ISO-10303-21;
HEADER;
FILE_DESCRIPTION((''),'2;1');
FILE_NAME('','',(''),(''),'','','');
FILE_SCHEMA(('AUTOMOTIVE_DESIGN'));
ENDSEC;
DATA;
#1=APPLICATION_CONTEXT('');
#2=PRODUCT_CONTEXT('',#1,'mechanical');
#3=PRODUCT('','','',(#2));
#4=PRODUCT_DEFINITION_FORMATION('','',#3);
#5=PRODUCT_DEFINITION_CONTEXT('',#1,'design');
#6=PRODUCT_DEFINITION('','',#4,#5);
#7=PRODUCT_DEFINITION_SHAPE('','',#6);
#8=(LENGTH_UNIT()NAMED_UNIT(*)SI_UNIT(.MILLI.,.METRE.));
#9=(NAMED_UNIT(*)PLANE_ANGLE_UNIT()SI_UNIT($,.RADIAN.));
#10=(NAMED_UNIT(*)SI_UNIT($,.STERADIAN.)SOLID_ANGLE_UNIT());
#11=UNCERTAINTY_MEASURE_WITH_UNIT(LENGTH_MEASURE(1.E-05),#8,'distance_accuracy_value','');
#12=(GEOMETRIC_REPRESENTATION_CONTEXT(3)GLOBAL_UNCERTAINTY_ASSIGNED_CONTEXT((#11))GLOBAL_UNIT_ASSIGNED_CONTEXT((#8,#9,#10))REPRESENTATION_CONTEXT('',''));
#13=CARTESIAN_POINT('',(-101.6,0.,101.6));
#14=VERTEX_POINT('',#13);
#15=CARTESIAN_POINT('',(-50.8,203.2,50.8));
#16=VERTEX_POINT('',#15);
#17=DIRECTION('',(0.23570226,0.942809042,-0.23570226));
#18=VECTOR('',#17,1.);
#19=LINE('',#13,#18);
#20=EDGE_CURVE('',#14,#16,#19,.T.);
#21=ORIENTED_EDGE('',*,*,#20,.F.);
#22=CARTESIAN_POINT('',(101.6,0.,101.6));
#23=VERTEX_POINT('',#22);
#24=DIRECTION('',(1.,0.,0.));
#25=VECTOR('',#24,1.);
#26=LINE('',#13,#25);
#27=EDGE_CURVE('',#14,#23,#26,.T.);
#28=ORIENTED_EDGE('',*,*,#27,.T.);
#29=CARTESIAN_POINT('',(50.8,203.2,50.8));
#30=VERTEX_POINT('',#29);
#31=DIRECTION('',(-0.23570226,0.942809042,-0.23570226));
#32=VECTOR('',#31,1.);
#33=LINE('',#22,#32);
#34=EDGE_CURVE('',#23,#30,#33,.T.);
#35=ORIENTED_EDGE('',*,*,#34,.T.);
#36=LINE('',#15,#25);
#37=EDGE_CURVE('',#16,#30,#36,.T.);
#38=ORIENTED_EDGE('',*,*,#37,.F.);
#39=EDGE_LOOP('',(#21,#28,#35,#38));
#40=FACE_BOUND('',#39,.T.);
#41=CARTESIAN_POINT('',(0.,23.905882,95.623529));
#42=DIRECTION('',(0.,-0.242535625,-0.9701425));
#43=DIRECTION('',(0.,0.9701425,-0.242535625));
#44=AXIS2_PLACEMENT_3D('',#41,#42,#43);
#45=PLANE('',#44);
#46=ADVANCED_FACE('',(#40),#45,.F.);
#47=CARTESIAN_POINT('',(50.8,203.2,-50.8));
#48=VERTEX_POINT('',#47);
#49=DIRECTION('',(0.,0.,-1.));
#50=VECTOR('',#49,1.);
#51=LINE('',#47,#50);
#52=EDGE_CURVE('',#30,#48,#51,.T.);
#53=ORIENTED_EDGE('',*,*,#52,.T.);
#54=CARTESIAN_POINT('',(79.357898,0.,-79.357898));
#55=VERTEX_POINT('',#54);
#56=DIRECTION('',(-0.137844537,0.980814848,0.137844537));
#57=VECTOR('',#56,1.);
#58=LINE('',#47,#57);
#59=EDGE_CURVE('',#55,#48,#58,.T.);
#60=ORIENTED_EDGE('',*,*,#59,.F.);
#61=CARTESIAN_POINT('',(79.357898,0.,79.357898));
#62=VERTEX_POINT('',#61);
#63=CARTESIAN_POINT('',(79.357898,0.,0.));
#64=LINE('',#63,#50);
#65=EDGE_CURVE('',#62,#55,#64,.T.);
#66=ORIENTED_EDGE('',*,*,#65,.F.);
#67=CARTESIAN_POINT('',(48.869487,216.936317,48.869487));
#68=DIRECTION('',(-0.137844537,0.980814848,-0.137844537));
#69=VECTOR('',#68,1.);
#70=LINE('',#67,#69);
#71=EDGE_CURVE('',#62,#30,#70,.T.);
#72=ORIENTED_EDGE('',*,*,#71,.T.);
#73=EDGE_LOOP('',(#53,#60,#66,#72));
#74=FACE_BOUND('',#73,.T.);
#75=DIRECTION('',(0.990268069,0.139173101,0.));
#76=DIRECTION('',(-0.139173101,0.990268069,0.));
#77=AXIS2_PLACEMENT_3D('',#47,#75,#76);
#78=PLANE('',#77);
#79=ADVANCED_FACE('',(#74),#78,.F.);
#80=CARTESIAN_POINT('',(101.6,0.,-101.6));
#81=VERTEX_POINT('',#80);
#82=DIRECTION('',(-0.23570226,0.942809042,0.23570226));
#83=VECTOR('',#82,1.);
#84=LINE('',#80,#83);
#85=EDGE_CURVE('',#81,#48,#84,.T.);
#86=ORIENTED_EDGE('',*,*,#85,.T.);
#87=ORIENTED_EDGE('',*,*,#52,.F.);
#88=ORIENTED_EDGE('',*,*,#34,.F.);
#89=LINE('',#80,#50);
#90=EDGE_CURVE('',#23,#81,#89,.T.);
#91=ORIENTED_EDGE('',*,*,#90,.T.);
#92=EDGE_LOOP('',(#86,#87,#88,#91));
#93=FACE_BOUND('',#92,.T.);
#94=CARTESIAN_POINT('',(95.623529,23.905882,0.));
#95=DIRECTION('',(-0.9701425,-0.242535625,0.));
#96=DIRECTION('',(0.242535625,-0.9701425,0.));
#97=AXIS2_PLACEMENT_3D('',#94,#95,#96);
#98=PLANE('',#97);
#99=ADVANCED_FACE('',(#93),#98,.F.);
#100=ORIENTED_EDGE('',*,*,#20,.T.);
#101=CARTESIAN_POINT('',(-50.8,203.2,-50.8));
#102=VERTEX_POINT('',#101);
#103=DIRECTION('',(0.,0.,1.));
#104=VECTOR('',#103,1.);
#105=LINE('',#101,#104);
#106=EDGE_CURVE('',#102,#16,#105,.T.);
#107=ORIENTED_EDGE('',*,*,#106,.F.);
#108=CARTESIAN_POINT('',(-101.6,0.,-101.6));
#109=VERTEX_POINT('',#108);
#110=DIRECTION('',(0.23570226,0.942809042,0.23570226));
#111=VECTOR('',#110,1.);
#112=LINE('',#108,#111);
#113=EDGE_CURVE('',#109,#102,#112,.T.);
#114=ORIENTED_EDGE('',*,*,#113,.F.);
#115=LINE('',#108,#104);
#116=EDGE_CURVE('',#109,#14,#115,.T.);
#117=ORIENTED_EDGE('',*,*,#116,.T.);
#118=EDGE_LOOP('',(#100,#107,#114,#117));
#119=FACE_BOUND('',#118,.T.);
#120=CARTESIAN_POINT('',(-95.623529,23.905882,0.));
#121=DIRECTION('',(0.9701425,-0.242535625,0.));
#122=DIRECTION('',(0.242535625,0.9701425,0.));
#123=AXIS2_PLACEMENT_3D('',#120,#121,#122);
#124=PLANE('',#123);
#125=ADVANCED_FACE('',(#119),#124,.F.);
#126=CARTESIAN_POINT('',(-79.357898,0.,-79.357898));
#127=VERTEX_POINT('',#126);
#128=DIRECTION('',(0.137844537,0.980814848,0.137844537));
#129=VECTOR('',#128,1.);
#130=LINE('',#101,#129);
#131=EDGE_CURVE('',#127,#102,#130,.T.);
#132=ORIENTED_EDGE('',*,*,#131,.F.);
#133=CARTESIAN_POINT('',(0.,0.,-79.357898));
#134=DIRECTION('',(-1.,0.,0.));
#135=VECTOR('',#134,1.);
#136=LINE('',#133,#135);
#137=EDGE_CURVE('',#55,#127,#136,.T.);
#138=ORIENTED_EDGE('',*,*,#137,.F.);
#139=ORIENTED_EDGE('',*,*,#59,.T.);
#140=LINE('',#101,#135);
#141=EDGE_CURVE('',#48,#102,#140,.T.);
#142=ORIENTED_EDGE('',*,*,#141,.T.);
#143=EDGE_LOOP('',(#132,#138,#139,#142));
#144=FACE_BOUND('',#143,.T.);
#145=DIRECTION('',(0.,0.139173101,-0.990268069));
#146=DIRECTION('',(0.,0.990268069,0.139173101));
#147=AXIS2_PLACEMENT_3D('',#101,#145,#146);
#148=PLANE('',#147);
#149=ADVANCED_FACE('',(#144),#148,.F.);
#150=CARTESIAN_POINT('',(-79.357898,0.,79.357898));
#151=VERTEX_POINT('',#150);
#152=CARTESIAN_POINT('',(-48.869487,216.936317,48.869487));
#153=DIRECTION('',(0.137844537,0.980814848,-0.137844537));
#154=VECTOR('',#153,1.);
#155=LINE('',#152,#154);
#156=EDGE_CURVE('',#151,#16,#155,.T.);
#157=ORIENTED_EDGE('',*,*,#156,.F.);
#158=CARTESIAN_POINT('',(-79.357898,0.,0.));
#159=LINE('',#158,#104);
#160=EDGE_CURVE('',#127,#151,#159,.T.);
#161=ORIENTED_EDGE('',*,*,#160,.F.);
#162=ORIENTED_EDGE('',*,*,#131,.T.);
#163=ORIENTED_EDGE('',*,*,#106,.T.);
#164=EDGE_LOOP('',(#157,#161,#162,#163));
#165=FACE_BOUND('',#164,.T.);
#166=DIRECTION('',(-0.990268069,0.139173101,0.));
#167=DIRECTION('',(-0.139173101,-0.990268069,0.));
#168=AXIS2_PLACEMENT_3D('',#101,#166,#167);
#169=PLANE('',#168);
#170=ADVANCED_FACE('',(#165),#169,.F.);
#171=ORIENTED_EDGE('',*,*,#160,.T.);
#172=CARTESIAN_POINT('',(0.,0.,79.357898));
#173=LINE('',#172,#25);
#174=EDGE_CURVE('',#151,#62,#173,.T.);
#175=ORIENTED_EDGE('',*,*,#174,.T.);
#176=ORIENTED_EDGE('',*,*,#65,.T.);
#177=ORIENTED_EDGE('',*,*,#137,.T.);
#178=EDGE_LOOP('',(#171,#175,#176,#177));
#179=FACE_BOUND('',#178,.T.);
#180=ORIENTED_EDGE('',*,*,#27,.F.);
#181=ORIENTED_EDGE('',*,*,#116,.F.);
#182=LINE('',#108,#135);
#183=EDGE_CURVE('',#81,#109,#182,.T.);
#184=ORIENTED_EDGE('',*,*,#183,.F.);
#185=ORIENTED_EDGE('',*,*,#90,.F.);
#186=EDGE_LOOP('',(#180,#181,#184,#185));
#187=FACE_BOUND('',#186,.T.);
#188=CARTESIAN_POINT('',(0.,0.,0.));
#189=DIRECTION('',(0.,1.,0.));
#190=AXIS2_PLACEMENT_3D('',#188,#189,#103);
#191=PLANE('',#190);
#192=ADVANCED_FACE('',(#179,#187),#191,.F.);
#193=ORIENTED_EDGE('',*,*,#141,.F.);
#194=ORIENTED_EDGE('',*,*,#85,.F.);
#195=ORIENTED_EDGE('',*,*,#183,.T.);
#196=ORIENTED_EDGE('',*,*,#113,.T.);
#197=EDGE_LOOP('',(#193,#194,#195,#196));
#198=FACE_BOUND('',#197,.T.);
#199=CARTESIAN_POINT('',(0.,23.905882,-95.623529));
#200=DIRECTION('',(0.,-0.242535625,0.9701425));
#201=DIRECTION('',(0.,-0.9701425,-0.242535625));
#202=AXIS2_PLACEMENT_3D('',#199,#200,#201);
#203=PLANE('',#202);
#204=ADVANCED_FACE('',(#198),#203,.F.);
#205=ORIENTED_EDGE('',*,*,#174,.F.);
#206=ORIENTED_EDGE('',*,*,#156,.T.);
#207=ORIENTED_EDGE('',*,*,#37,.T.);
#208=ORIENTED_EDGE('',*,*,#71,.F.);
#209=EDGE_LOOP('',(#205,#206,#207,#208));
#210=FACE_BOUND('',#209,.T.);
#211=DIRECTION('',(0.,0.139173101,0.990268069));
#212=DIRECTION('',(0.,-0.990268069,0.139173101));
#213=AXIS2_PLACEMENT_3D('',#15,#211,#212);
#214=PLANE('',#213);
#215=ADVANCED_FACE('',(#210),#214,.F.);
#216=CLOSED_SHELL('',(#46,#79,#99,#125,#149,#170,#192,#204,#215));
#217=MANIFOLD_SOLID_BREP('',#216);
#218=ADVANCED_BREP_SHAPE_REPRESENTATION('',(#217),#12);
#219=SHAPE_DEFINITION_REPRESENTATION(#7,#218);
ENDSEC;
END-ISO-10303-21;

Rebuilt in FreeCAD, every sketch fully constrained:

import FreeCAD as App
import Part
import Sketcher
from FreeCAD import Vector
Q = App.Units.Quantity

doc = App.newDocument("Part")
body = doc.addObject("PartDesign::Body", "Body")

sketch1 = doc.addObject("Sketcher::SketchObject", "Sketch")
body.addObject(sketch1)
sketch1.AttachmentSupport = (doc.XZ_Plane, [""])
sketch1.MapMode = "FlatFace"
sketch1.addGeometry([
    Part.LineSegment(Vector(-102, -102, 0), Vector(-102, 102, 0)),
    Part.LineSegment(Vector(-102, 102, 0), Vector(102, 102, 0)),
    Part.LineSegment(Vector(102, 102, 0), Vector(102, -102, 0)),
    Part.LineSegment(Vector(102, -102, 0), Vector(-102, -102, 0)),
], False)
sketch1.addConstraint([
    Sketcher.Constraint("Coincident", 0, 2, 1, 1),
    Sketcher.Constraint("Coincident", 1, 2, 2, 1),
    Sketcher.Constraint("Coincident", 2, 2, 3, 1),
    Sketcher.Constraint("Coincident", 3, 2, 0, 1),
    Sketcher.Constraint("Vertical", 0),
    Sketcher.Constraint("Horizontal", 1),
    Sketcher.Constraint("Vertical", 2),
    Sketcher.Constraint("Horizontal", 3),
    Sketcher.Constraint("Symmetric", 0, 2, 2, 2, -1, 1),
    Sketcher.Constraint("Equal", 3, 0),
    Sketcher.Constraint("DistanceX", 1, 1, 1, 2, Q("8 in")),
])

sketch2 = doc.addObject("Sketcher::SketchObject", "Sketch001")
body.addObject(sketch2)
sketch2.AttachmentSupport = (doc.XZ_Plane, [""])
sketch2.MapMode = "FlatFace"
sketch2.AttachmentOffset = App.Placement(Vector(0, 0, -8 * 25.4), App.Rotation())
sketch2.addGeometry([
    Part.LineSegment(Vector(-51, -51, 0), Vector(-51, 51, 0)),
    Part.LineSegment(Vector(-51, 51, 0), Vector(51, 51, 0)),
    Part.LineSegment(Vector(51, 51, 0), Vector(51, -51, 0)),
    Part.LineSegment(Vector(51, -51, 0), Vector(-51, -51, 0)),
], False)
sketch2.addConstraint([
    Sketcher.Constraint("Coincident", 0, 2, 1, 1),
    Sketcher.Constraint("Coincident", 1, 2, 2, 1),
    Sketcher.Constraint("Coincident", 2, 2, 3, 1),
    Sketcher.Constraint("Coincident", 3, 2, 0, 1),
    Sketcher.Constraint("Vertical", 0),
    Sketcher.Constraint("Horizontal", 1),
    Sketcher.Constraint("Vertical", 2),
    Sketcher.Constraint("Horizontal", 3),
    Sketcher.Constraint("Symmetric", 0, 2, 2, 2, -1, 1),
    Sketcher.Constraint("Equal", 3, 0),
    Sketcher.Constraint("DistanceX", 1, 1, 1, 2, Q("4 in")),
])

additiveloft = doc.addObject("PartDesign::AdditiveLoft", "AdditiveLoft")
body.addObject(additiveloft)
additiveloft.Profile = sketch1
additiveloft.Sections = [sketch2]

sketch3 = doc.addObject("Sketcher::SketchObject", "Sketch002")
body.addObject(sketch3)
sketch3.AttachmentSupport = (doc.XZ_Plane, [""])
sketch3.MapMode = "FlatFace"
sketch3.AttachmentOffset = App.Placement(Vector(0, 0, -8 * 25.4), App.Rotation())
sketch3.addGeometry([
    Part.LineSegment(Vector(-51, -51, 0), Vector(-51, 51, 0)),
    Part.LineSegment(Vector(-51, 51, 0), Vector(51, 51, 0)),
    Part.LineSegment(Vector(51, 51, 0), Vector(51, -51, 0)),
    Part.LineSegment(Vector(51, -51, 0), Vector(-51, -51, 0)),
], False)
sketch3.addConstraint([
    Sketcher.Constraint("Coincident", 0, 2, 1, 1),
    Sketcher.Constraint("Coincident", 1, 2, 2, 1),
    Sketcher.Constraint("Coincident", 2, 2, 3, 1),
    Sketcher.Constraint("Coincident", 3, 2, 0, 1),
    Sketcher.Constraint("Vertical", 0),
    Sketcher.Constraint("Horizontal", 1),
    Sketcher.Constraint("Vertical", 2),
    Sketcher.Constraint("Horizontal", 3),
    Sketcher.Constraint("Symmetric", 0, 2, 2, 2, -1, 1),
    Sketcher.Constraint("Equal", 3, 0),
    Sketcher.Constraint("DistanceX", 1, 1, 1, 2, Q("4 in")),
])
pocket1 = doc.addObject("PartDesign::Pocket", "Pocket")
body.addObject(pocket1)
pocket1.Profile = sketch3
pocket1.Length = Q("8 in")
pocket1.Reversed = True
pocket1.TaperAngle = 8

doc.recompute()
